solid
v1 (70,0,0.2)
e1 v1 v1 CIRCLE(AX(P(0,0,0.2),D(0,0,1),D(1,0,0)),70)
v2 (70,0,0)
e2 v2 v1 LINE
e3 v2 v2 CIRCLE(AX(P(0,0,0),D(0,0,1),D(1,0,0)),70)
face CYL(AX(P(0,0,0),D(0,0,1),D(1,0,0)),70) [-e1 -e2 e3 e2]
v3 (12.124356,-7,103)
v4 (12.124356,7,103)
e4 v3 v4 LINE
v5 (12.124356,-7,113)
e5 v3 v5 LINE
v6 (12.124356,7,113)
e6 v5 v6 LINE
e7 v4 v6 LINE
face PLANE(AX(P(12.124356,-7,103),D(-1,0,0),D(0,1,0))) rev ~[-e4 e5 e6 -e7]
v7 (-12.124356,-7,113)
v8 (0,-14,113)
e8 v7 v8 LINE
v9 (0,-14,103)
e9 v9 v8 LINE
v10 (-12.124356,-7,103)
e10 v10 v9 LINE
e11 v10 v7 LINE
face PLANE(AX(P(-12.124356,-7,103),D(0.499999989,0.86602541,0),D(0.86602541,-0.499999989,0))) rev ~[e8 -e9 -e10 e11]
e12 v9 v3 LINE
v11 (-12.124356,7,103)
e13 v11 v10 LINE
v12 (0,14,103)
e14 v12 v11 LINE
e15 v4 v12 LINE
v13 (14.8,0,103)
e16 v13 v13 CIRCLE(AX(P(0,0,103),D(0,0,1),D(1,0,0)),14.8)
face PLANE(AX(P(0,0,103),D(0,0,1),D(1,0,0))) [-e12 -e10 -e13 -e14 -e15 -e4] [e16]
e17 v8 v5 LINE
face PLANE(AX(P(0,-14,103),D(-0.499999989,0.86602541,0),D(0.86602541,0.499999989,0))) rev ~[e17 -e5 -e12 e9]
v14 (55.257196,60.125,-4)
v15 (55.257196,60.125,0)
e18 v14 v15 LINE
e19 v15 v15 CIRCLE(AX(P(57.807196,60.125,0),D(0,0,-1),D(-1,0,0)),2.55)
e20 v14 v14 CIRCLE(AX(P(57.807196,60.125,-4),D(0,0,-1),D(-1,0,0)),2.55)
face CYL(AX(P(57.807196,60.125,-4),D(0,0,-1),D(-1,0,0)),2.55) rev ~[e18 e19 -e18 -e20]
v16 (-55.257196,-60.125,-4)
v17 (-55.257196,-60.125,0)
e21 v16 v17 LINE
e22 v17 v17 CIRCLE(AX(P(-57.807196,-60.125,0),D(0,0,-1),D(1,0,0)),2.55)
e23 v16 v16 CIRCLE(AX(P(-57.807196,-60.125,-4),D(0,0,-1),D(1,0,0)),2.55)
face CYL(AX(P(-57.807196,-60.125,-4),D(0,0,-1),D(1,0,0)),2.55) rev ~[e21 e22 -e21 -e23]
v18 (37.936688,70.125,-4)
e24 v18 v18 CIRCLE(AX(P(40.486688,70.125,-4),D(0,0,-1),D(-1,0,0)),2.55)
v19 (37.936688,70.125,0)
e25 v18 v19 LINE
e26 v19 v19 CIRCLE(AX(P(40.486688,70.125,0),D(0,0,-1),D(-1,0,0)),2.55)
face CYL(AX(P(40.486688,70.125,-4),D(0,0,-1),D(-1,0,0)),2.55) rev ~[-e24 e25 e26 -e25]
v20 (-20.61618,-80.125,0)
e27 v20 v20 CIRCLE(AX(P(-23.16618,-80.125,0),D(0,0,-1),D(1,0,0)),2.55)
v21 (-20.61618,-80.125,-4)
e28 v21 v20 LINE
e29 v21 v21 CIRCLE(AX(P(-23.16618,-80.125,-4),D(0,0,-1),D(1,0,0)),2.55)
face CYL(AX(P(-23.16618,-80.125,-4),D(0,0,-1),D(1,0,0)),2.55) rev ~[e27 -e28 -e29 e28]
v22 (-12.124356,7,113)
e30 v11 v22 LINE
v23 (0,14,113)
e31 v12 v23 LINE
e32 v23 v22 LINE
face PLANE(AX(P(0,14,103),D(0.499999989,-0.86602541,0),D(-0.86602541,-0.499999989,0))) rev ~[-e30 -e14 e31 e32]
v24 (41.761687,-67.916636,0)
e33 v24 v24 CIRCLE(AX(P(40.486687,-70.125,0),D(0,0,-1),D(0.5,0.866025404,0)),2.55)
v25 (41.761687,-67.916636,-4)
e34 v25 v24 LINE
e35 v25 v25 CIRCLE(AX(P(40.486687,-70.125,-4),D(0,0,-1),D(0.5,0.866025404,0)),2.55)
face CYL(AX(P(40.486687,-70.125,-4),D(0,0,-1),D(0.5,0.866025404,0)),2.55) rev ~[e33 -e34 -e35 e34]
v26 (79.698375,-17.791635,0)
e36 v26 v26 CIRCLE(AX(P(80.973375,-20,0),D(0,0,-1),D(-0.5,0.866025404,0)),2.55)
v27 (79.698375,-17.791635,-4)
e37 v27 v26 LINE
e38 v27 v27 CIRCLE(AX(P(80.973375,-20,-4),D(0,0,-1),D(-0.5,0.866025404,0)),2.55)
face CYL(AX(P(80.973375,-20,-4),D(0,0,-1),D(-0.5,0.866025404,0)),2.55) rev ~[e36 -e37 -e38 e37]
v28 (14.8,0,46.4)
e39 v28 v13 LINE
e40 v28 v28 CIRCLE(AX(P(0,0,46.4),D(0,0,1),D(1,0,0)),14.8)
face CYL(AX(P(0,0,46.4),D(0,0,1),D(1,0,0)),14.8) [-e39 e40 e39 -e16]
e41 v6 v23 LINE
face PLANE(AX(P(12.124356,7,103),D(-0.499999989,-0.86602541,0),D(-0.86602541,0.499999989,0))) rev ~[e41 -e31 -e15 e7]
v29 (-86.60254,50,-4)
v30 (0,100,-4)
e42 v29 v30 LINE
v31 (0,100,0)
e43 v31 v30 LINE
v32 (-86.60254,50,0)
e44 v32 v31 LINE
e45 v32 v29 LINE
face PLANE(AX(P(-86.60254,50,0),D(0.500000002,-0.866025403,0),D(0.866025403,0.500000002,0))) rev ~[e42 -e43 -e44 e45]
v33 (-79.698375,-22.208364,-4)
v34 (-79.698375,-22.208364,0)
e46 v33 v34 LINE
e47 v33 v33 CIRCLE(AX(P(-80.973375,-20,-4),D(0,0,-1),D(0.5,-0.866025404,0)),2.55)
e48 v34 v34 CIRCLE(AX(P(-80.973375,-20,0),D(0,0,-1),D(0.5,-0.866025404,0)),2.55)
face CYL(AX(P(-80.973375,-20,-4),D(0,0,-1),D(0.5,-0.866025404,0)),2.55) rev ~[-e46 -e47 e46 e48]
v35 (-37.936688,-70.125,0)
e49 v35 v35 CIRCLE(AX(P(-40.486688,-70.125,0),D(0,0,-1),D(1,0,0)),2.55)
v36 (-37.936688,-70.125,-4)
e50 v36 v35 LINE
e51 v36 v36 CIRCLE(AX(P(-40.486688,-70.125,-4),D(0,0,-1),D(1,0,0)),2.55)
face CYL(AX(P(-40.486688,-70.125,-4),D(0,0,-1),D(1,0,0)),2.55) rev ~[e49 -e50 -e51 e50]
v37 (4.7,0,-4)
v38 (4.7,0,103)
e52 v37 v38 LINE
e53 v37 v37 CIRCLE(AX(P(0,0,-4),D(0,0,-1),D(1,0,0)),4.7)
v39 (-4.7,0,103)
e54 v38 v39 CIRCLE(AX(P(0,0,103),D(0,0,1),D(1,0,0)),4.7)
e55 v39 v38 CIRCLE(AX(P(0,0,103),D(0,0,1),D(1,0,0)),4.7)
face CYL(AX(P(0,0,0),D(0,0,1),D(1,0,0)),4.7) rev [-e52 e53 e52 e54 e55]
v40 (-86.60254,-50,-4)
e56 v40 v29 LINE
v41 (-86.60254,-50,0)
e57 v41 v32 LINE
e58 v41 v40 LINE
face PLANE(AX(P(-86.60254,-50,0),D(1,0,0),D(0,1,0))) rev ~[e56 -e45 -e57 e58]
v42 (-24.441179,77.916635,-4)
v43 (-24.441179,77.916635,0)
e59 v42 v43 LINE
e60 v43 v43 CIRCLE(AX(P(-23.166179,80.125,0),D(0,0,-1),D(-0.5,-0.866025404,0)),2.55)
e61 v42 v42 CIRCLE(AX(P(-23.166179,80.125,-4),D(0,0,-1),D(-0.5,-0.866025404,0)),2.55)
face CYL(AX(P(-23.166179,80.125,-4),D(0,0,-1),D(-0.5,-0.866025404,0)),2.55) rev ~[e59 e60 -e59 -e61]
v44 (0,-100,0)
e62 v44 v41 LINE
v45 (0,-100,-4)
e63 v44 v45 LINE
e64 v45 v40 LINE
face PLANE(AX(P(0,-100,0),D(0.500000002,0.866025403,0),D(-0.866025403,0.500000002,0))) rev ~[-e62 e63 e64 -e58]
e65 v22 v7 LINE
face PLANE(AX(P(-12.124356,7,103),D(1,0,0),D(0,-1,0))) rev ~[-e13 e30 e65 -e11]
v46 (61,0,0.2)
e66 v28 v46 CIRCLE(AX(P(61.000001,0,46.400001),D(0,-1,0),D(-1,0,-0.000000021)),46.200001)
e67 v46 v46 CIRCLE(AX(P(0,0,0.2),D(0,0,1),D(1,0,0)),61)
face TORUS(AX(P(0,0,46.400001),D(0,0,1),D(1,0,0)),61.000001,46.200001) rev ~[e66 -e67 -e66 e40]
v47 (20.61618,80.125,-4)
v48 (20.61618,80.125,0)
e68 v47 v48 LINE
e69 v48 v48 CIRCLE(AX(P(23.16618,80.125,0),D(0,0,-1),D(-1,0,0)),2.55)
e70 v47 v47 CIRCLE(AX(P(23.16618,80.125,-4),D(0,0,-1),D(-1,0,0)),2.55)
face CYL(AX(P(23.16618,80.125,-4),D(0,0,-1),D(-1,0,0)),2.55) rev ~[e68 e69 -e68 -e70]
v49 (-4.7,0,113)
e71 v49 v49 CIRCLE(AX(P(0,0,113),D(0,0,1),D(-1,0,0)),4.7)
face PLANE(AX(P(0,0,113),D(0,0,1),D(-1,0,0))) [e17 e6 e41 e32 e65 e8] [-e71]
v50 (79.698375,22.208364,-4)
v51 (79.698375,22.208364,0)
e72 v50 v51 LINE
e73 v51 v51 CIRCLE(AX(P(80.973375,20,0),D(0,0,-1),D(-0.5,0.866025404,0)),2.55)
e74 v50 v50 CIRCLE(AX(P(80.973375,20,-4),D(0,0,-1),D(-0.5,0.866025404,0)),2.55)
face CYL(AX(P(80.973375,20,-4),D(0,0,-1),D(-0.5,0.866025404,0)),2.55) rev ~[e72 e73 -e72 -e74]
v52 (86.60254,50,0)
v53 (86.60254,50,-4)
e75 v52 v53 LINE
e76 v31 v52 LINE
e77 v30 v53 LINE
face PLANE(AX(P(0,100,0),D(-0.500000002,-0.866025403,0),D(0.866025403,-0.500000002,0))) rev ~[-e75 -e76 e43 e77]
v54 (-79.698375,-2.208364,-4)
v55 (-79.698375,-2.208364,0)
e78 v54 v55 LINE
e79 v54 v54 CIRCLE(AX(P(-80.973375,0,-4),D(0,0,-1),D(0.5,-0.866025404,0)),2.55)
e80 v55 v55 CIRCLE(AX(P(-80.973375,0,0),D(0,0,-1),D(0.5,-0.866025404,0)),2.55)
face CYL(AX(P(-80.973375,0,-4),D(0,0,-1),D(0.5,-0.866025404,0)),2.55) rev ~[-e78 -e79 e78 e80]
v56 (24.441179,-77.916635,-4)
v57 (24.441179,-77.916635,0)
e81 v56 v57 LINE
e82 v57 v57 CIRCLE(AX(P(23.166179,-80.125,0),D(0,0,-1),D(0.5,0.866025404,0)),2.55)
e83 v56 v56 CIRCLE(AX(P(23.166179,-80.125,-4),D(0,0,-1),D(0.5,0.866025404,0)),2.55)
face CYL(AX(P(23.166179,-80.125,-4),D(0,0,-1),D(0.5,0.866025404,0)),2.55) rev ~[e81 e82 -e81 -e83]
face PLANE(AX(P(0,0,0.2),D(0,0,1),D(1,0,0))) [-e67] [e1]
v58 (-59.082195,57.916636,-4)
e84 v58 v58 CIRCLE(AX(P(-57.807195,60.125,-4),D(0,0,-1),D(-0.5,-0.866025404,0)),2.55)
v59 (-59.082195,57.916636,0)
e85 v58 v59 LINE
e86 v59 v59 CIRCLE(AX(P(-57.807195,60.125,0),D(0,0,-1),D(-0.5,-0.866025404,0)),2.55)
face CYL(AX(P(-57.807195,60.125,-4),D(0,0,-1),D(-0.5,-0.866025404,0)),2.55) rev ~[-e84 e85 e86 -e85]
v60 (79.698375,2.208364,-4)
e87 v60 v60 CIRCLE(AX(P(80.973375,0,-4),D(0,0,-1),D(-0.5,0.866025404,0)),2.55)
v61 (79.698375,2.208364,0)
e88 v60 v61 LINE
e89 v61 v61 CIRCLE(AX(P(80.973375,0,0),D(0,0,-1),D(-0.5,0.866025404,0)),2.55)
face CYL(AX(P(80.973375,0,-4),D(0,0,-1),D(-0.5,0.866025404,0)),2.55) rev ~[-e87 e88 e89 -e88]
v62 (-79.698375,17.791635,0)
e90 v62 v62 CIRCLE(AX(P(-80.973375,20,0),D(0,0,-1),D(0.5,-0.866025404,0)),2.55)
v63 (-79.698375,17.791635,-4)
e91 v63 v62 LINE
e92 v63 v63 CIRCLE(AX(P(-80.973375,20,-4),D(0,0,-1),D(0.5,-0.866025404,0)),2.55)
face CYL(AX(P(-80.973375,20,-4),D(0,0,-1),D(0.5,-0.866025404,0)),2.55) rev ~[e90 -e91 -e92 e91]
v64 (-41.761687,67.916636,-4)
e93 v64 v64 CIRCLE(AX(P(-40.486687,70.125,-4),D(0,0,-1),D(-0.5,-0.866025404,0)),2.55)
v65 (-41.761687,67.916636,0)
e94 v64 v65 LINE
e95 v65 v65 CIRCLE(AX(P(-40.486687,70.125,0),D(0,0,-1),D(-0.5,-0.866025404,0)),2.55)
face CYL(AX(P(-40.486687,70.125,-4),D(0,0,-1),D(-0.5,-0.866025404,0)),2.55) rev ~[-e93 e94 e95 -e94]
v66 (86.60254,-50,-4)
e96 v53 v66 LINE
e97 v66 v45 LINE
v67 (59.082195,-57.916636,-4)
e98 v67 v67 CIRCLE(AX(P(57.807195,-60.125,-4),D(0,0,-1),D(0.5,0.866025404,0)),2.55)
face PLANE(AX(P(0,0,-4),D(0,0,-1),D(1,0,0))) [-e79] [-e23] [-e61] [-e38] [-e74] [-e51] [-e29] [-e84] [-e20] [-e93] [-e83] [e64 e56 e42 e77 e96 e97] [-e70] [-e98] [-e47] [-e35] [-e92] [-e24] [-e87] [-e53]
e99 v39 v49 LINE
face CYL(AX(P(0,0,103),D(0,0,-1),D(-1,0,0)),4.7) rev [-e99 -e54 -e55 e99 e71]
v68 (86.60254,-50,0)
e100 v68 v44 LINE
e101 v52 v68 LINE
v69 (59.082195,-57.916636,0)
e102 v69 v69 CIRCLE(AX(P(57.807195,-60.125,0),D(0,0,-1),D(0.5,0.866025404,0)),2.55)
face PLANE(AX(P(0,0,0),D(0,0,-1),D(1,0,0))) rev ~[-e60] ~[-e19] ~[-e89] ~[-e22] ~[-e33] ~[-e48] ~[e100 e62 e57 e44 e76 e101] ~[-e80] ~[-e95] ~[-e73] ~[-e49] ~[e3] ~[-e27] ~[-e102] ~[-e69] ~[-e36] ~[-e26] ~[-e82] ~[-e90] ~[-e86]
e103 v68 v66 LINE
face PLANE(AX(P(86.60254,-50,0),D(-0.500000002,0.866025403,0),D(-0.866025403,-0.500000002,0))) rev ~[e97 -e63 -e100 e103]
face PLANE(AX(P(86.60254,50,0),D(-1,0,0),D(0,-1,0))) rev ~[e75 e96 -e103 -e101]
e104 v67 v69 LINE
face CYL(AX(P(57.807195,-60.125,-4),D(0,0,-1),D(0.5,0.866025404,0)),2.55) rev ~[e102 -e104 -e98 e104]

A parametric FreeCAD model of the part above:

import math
import FreeCAD as App
import Part
import Sketcher
Q = App.Units.Quantity


def add_polygon(sketch, points):
    """Adds a closed chain of lines whose ends are joined by coincident constraints."""
    first, n = sketch.GeometryCount, len(points)
    for a, b in zip(points, points[1:] + points[:1]):
        sketch.addGeometry(Part.LineSegment(App.Vector(*a, 0), App.Vector(*b, 0)), False)
    for i in range(n):
        sketch.addConstraint(Sketcher.Constraint("Coincident", first + i, 2, first + (i + 1) % n, 1))

doc = App.newDocument("Part")
body = doc.addObject("PartDesign::Body", "Body")

# Sketch on XZ plane
sketch1 = body.newObject("Sketcher::SketchObject", "Sketch")
sketch1.AttachmentSupport = (doc.getObject("XZ_Plane"), [""])
sketch1.MapMode = "FlatFace"
sketch1.addGeometry([
    Part.LineSegment(App.Vector(14.8, 46.4, 0), App.Vector(14.8, 103, 0)),  # 0
    Part.LineSegment(App.Vector(14.8, 103, 0), App.Vector(4.7, 103, 0)),  # 1
    Part.LineSegment(App.Vector(4.7, 103, 0), App.Vector(4.7, 0, 0)),  # 2
    Part.LineSegment(App.Vector(4.7, 0, 0), App.Vector(70, 0, 0)),  # 3
    Part.LineSegment(App.Vector(70, 0, 0), App.Vector(70, 0.2, 0)),  # 4
    Part.LineSegment(App.Vector(70, 0.2, 0), App.Vector(61, 0.2, 0)),  # 5
    Part.ArcOfCircle(Part.Circle(App.Vector(61, 46.4, 0), App.Vector(0, 0, 1), 46.2), math.radians(-180), math.radians(-90)),  # 6
], False)
sketch1.addConstraint([
    Sketcher.Constraint("Coincident", 0, 2, 1, 1),
    Sketcher.Constraint("Coincident", 1, 2, 2, 1),
    Sketcher.Constraint("Coincident", 2, 2, 3, 1),
    Sketcher.Constraint("Coincident", 3, 2, 4, 1),
    Sketcher.Constraint("Coincident", 4, 2, 5, 1),
    Sketcher.Constraint("Tangent", 5, 2, 6, 2),
    Sketcher.Constraint("Tangent", 6, 1, 0, 1),
    Sketcher.Constraint("Vertical", 0),
    Sketcher.Constraint("Horizontal", 1),
    Sketcher.Constraint("Vertical", 2),
    Sketcher.Constraint("Horizontal", 3),
    Sketcher.Constraint("Vertical", 4),
    Sketcher.Constraint("Horizontal", 5),
    Sketcher.Constraint("PointOnObject", 2, 2, -1),
    Sketcher.Constraint("Radius", 6, 46.200001),
    Sketcher.Constraint("DistanceX", 5, 2, 5, 1, 9.0),
    Sketcher.Constraint("DistanceY", 2, 2, 2, 1, 103.0),
    Sketcher.Constraint("DistanceX", 1, 2, 1, 1, 10.1),
    Sketcher.Constraint("DistanceY", 0, 1, 0, 2, 56.6),
    Sketcher.Constraint("DistanceX", -1, 1, 6, 3, 61.000001),
])
revolution = body.newObject("PartDesign::Revolution", "Revolution")
revolution.Profile = sketch1
revolution.ReferenceAxis = (sketch1, ["V_Axis"])
revolution.Angle = 360

# Sketch on XY plane
sketch2 = body.newObject("Sketcher::SketchObject", "Sketch001")
sketch2.AttachmentSupport = (doc.getObject("XY_Plane"), [""])
sketch2.MapMode = "FlatFace"
add_polygon(sketch2, [(0, -100), (-86.6, -50), (-86.6, 50), (0, 100), (86.6, 50), (86.6, -50)])  # lines 0-5
sketch2.addGeometry(Part.Circle(App.Vector(0, 0, 0), App.Vector(0, 0, 1), 4.7), False)  # 6
sketch2.addConstraint([
    Sketcher.Constraint("Vertical", 1),
    Sketcher.Constraint("Vertical", 4),
    Sketcher.Constraint("Coincident", 6, 3, -1, 1),
    Sketcher.Constraint("Symmetric", 0, 2, 3, 2, -1, 1),
    Sketcher.Constraint("Symmetric", 2, 2, 5, 2, -1, 1),
    Sketcher.Constraint("PointOnObject", 2, 2, -2),
    Sketcher.Constraint("Parallel", 2, 5),
    Sketcher.Constraint("Horizontal", 1, 2, 3, 2),
    Sketcher.Constraint("Diameter", 6, 9.4),
    Sketcher.Constraint("DistanceY", 1, 1, 1, 2, 100.0),
    Sketcher.Constraint("Angle", 0, Q("150 deg")),
    Sketcher.Constraint("Distance", 0, 100.0),
])
pad1 = body.newObject("PartDesign::Pad", "Pad")
pad1.Profile = sketch2
pad1.Length = 4
pad1.Reversed = True

# Sketch on XY plane
sketch3 = body.newObject("Sketcher::SketchObject", "Sketch002")
sketch3.AttachmentSupport = (doc.getObject("XY_Plane"), [""])
sketch3.MapMode = "FlatFace"
sketch3.AttachmentOffset = App.Placement(App.Vector(0, 0, 103), App.Rotation())
add_polygon(sketch3, [(0, -14), (12.1, -7), (12.1, 7), (0, 14), (-12.1, 7), (-12.1, -7)])  # lines 0-5
sketch3.addGeometry(Part.Circle(App.Vector(0, 0, 0), App.Vector(0, 0, 1), 4.7), False)  # 6
sketch3.addConstraint([
    Sketcher.Constraint("Vertical", 1),
    Sketcher.Constraint("Vertical", 4),
    Sketcher.Constraint("Coincident", 6, 3, -1, 1),
    Sketcher.Constraint("Symmetric", 0, 2, 3, 2, -1, 1),
    Sketcher.Constraint("Symmetric", 2, 2, 5, 2, -1, 1),
    Sketcher.Constraint("PointOnObject", 2, 2, -2),
    Sketcher.Constraint("Parallel", 2, 5),
    Sketcher.Constraint("Horizontal", 1, 2, 3, 2),
    Sketcher.Constraint("Diameter", 6, 9.4),
    Sketcher.Constraint("DistanceY", 1, 1, 1, 2, 14.0),
    Sketcher.Constraint("Angle", 0, Q("29.999999 deg")),
    Sketcher.Constraint("Distance", 0, 14.0),
])
pad2 = body.newObject("PartDesign::Pad", "Pad001")
pad2.Profile = sketch3
pad2.Length = 10

# Sketch on XY plane
sketch4 = body.newObject("Sketcher::SketchObject", "Sketch003")
sketch4.AttachmentSupport = (doc.getObject("XY_Plane"), [""])
sketch4.MapMode = "FlatFace"
sketch4.AttachmentOffset = App.Placement(App.Vector(0, 0, -4), App.Rotation())
sketch4.addGeometry([
    Part.Circle(App.Vector(-57.8, -60.1, 0), App.Vector(0, 0, 1), 2.5),
    Part.Circle(App.Vector(-40.5, -70.1, 0), App.Vector(0, 0, 1), 2.5),
    Part.Circle(App.Vector(-23.2, -80.1, 0), App.Vector(0, 0, 1), 2.5),
], False)
sketch4.addConstraint([
    Sketcher.Constraint("Equal", 0, 1),
    Sketcher.Constraint("Equal", 1, 2),
    Sketcher.Constraint("Diameter", 0, 5.1),
    Sketcher.Constraint("DistanceY", 1, 3, 0, 3, 10.0),
    Sketcher.Constraint("DistanceY", 2, 3, 1, 3, 10.0),
    Sketcher.Constraint("DistanceY", 0, 3, -1, 1, 60.125),
    Sketcher.Constraint("DistanceX", 2, 3, -1, 1, 23.16618),
    Sketcher.Constraint("DistanceX", 1, 3, 2, 3, 17.320508),
    Sketcher.Constraint("DistanceX", 0, 3, -1, 1, 57.807196),
])
pocket1 = body.newObject("PartDesign::Pocket", "Pocket")
pocket1.Profile = sketch4
pocket1.Length = 5
pocket1.Reversed = True
doc.recompute()

polarpattern = body.newObject("PartDesign::PolarPattern", "PolarPattern")
polarpattern.Originals = [pocket1]
polarpattern.Axis = (doc.getObject("Z_Axis"), [""])
polarpattern.Angle = 360
polarpattern.Occurrences = 6
body.Tip = polarpattern

doc.recompute()
